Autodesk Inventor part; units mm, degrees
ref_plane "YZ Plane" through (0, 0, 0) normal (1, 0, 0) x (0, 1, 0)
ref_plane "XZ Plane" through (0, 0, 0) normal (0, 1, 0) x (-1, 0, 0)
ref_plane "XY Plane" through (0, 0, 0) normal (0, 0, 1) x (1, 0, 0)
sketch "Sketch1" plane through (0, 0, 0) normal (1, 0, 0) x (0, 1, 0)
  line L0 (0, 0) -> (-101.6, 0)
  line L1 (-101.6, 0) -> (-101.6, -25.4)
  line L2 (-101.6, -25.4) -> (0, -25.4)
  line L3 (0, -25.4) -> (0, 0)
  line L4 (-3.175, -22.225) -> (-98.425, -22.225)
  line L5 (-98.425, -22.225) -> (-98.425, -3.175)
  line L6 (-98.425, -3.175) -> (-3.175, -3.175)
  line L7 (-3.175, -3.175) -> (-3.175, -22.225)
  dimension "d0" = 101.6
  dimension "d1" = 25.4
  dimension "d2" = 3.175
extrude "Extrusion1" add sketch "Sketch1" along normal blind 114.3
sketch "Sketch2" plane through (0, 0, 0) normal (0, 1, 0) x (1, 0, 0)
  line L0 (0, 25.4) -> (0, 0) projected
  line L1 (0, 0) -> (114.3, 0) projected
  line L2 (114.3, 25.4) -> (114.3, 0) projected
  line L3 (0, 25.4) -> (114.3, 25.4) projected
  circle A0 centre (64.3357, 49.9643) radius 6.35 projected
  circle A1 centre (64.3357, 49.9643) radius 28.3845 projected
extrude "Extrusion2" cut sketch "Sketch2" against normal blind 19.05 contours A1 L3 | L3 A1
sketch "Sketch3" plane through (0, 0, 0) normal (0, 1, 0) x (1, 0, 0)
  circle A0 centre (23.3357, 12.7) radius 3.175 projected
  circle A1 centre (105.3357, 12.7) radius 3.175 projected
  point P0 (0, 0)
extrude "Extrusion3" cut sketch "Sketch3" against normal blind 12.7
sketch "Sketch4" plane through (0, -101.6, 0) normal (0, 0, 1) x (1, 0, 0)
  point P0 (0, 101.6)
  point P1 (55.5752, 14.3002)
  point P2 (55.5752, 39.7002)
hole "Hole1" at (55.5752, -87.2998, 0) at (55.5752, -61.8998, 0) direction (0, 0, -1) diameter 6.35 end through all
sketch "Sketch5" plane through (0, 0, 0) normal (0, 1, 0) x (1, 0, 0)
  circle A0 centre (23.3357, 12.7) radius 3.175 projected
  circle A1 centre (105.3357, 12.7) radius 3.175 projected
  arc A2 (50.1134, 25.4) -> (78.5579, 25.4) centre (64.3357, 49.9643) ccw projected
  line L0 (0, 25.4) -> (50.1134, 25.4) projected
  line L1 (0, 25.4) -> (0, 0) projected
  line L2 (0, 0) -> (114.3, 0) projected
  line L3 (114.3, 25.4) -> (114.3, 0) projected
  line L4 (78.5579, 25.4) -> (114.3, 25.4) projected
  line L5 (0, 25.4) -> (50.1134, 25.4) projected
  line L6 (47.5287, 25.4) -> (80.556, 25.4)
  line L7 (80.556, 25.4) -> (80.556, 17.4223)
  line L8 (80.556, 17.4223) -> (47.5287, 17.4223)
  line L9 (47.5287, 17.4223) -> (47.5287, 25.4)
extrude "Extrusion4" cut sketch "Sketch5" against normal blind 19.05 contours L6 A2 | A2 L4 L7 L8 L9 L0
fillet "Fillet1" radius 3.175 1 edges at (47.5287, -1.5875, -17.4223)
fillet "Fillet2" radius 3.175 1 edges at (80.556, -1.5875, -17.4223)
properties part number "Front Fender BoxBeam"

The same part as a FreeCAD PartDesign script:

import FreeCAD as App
import Part
import Sketcher
Q = App.Units.Quantity


def edges_at(feature, points):
    """Names of the edges that pass closest to the given points."""
    edges = feature.Shape.Edges
    near = lambda p: min(range(len(edges)), key=lambda i: edges[i].distToShape(Part.Vertex(*p))[0])
    return sorted({f"Edge{near(p) + 1}" for p in points})


def add_polygon(sketch, points):
    """Adds a closed chain of lines whose ends are joined by coincident constraints."""
    first, n = sketch.GeometryCount, len(points)
    for a, b in zip(points, points[1:] + points[:1]):
        sketch.addGeometry(Part.LineSegment(App.Vector(*a, 0), App.Vector(*b, 0)), False)
    for i in range(n):
        sketch.addConstraint(Sketcher.Constraint("Coincident", first + i, 2, first + (i + 1) % n, 1))

doc = App.newDocument("Part")
params = doc.addObject("Spreadsheet::Sheet", "Params")
for row, (alias, value) in enumerate([
    ("sketch1_width", "4 in"),
    ("sketch1_height", "1 in"),
    ("pad1_length", "4.5 in"),
    ("sketch2_diameter", "0.5 in"),
    ("sketch2_diameter2", "2.235 in"),
    ("pocket1_length", "0.75 in"),
    ("sketch3_diameter", "0.25 in"),
    ("pocket2_length", "0.5 in"),
    ("sketch4_diameter", "0.25 in"),
    ("hole_diameter", "0.25 in"),
    ("pocket3_length", "0.75 in"),
    ("fillet_radius", "0.125 in"),
    ("fillet2_radius", "0.125 in"),
], start=1):
    params.set(f"A{row}", alias)
    params.set(f"B{row}", "=" + value)
    params.setAlias(f"B{row}", alias)

body = doc.addObject("PartDesign::Body", "Body")

sketch1 = body.newObject("Sketcher::SketchObject", "Sketch")
sketch1.AttachmentSupport = (doc.getObject("YZ_Plane"), [""])
sketch1.MapMode = "FlatFace"
add_polygon(sketch1, [(0, -25), (0, 0), (-102, 0), (-102, -25)])
add_polygon(sketch1, [(-3, -3), (-3, -22), (-98, -22), (-98, -3)])
sketch1.addConstraint([
    Sketcher.Constraint("Vertical", 0),
    Sketcher.Constraint("Horizontal", 1),
    Sketcher.Constraint("Vertical", 2),
    Sketcher.Constraint("Horizontal", 3),
    Sketcher.Constraint("Vertical", 4),
    Sketcher.Constraint("Horizontal", 5),
    Sketcher.Constraint("Vertical", 6),
    Sketcher.Constraint("Horizontal", 7),
    Sketcher.Constraint("Coincident", 0, 2, -1, 1),
    Sketcher.Constraint("DistanceX", 1, 2, 1, 1, Q("4 in")),
    Sketcher.Constraint("DistanceY", 0, 1, 0, 2, Q("1 in")),
    Sketcher.Constraint("DistanceX", 4, 2, -1, 1, Q("0.125 in")),
    Sketcher.Constraint("DistanceY", 6, 2, -1, 1, Q("0.125 in")),
    Sketcher.Constraint("DistanceY", 3, 2, 4, 2, Q("0.125 in")),
    Sketcher.Constraint("DistanceX", 2, 2, 5, 2, Q("0.125 in")),
])
sketch1.setExpression("Constraints[17]", "Params.sketch1_width")
sketch1.setExpression("Constraints[18]", "Params.sketch1_height")
pad1 = body.newObject("PartDesign::Pad", "Pad")
pad1.Profile = sketch1
pad1.setExpression("Length", "Params.pad1_length")

sketch2 = body.newObject("Sketcher::SketchObject", "Sketch001")
sketch2.AttachmentSupport = (doc.getObject("XZ_Plane"), [""])
sketch2.MapMode = "FlatFace"
sketch2.addGeometry([
    Part.Circle(App.Vector(64, -50, 0), App.Vector(0, 0, 1), 28),
    Part.Circle(App.Vector(64, -50, 0), App.Vector(0, 0, 1), 6),
], False)
sketch2.addConstraint([
    Sketcher.Constraint("Coincident", 1, 3, 0, 3),
    Sketcher.Constraint("Diameter", 1, Q("0.5 in")),
    Sketcher.Constraint("Diameter", 0, Q("2.235 in")),
    Sketcher.Constraint("DistanceX", -1, 1, 0, 3, Q("2.5329 in")),
    Sketcher.Constraint("DistanceY", 0, 3, -1, 1, Q("1.9671 in")),
])
sketch2.setExpression("Constraints[1]", "Params.sketch2_diameter")
sketch2.setExpression("Constraints[2]", "Params.sketch2_diameter2")
pocket1 = body.newObject("PartDesign::Pocket", "Pocket")
pocket1.Profile = sketch2
pocket1.setExpression("Length", "Params.pocket1_length")
pocket1.Reversed = True

sketch3 = body.newObject("Sketcher::SketchObject", "Sketch002")
sketch3.AttachmentSupport = (doc.getObject("XZ_Plane"), [""])
sketch3.MapMode = "FlatFace"
sketch3.addGeometry([
    Part.Circle(App.Vector(23.3, -12.7, 0), App.Vector(0, 0, 1), 3.2),
    Part.Circle(App.Vector(105.3, -12.7, 0), App.Vector(0, 0, 1), 3.2),
], False)
sketch3.addConstraint([
    Sketcher.Constraint("Equal", 0, 1),
    Sketcher.Constraint("Horizontal", 0, 3, 1, 3),
    Sketcher.Constraint("Diameter", 0, Q("0.25 in")),
    Sketcher.Constraint("DistanceY", 0, 3, -1, 1, Q("0.5 in")),
    Sketcher.Constraint("DistanceX", -1, 1, 0, 3, 23.3357),
    Sketcher.Constraint("DistanceX", -1, 1, 1, 3, 105.3357),
])
sketch3.setExpression("Constraints[2]", "Params.sketch3_diameter")
pocket2 = body.newObject("PartDesign::Pocket", "Pocket001")
pocket2.Profile = sketch3
pocket2.setExpression("Length", "Params.pocket2_length")
pocket2.Reversed = True

sketch4 = body.newObject("Sketcher::SketchObject", "Sketch003")
sketch4.AttachmentSupport = (doc.getObject("XY_Plane"), [""])
sketch4.MapMode = "FlatFace"
sketch4.addGeometry([
    Part.Circle(App.Vector(55.6, -87.3, 0), App.Vector(0, 0, 1), 3.2),
    Part.Circle(App.Vector(55.6, -61.9, 0), App.Vector(0, 0, 1), 3.2),
], False)
sketch4.addConstraint([
    Sketcher.Constraint("Equal", 0, 1),
    Sketcher.Constraint("Vertical", 0, 3, 1, 3),
    Sketcher.Constraint("Diameter", 0, Q("0.25 in")),
    Sketcher.Constraint("DistanceY", 0, 3, 1, 3, Q("1 in")),
    Sketcher.Constraint("DistanceX", -1, 1, 0, 3, Q("2.188 in")),
    Sketcher.Constraint("DistanceY", 0, 3, -1, 1, Q("3.437 in")),
])
sketch4.setExpression("Constraints[2]", "Params.sketch4_diameter")
doc.recompute()
hole = body.newObject("PartDesign::Hole", "Hole")
hole.Profile = sketch4
hole.ThreadType = "None"
hole.setExpression("Diameter", "Params.hole_diameter")
hole.DepthType = "ThroughAll"

sketch5 = body.newObject("Sketcher::SketchObject", "Sketch004")
sketch5.AttachmentSupport = (doc.getObject("XZ_Plane"), [""])
sketch5.MapMode = "FlatFace"
add_polygon(sketch5, [(48, -25), (48, -17), (81, -17), (81, -25)])
sketch5.addConstraint([
    Sketcher.Constraint("Vertical", 0),
    Sketcher.Constraint("Horizontal", 1),
    Sketcher.Constraint("Vertical", 2),
    Sketcher.Constraint("Horizontal", 3),
    Sketcher.Constraint("DistanceY", 2, 2, -1, 1, Q("1 in")),
    Sketcher.Constraint("DistanceX", 1, 1, 1, 2, 33.0273),
    Sketcher.Constraint("DistanceY", 0, 1, 0, 2, 7.9777),
    Sketcher.Constraint("DistanceX", -1, 1, 0, 2, Q("1.8712 in")),
])
pocket3 = body.newObject("PartDesign::Pocket", "Pocket002")
pocket3.Profile = sketch5
pocket3.setExpression("Length", "Params.pocket3_length")
pocket3.Reversed = True
doc.recompute()

fillet = body.newObject("PartDesign::Fillet", "Fillet")
fillet.Base = (pocket3, edges_at(pocket3, [(47.529, -1.587, -17.422)]))
fillet.setExpression("Radius", "Params.fillet_radius")
doc.recompute()

fillet2 = body.newObject("PartDesign::Fillet", "Fillet001")
fillet2.Base = (fillet, edges_at(fillet, [(80.556, -1.587, -17.422)]))
fillet2.setExpression("Radius", "Params.fillet2_radius")

doc.recompute()
